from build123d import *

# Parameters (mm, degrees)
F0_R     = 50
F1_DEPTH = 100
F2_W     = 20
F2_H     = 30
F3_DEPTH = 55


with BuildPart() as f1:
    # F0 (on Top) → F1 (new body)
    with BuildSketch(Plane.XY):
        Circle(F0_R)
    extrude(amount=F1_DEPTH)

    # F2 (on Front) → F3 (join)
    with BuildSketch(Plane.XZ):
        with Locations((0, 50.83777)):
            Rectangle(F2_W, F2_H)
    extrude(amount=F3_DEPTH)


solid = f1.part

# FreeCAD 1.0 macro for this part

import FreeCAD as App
import Part
import Sketcher

V = App.Vector


def add_polygon(sketch, points):
    """Adds a closed chain of lines whose ends are joined by coincident constraints."""
    first, n = sketch.GeometryCount, len(points)
    for a, b in zip(points, points[1:] + points[:1]):
        sketch.addGeometry(Part.LineSegment(App.Vector(*a, 0), App.Vector(*b, 0)), False)
    for i in range(n):
        sketch.addConstraint(Sketcher.Constraint("Coincident", first + i, 2, first + (i + 1) % n, 1))

doc = App.newDocument("Part")
body = doc.addObject("PartDesign::Body", "Body")

# Sketch on XY plane
sketch1 = doc.addObject("Sketcher::SketchObject", "Sketch")
body.addObject(sketch1)
sketch1.AttachmentSupport = (doc.XY_Plane, [""])
sketch1.MapMode = "FlatFace"
sketch1.addGeometry(Part.Circle(V(0, 0, 0), V(0, 0, 1), 50), False)
sketch1.addConstraint(Sketcher.Constraint("Coincident", 0, 3, -1, 1))
sketch1.addConstraint(Sketcher.Constraint("Diameter", 0, 100.0))
pad1 = doc.addObject("PartDesign::Pad", "Pad")
body.addObject(pad1)
pad1.Profile = sketch1
pad1.Length = 100

# Sketch on XZ plane
sketch2 = doc.addObject("Sketcher::SketchObject", "Sketch001")
body.addObject(sketch2)
sketch2.AttachmentSupport = (doc.XZ_Plane, [""])
sketch2.MapMode = "FlatFace"
add_polygon(sketch2, [(-10, 66), (-10, 36), (10, 36), (10, 66)])  # lines 0-3
sketch2.addConstraint(Sketcher.Constraint("Vertical", 0))
sketch2.addConstraint(Sketcher.Constraint("Horizontal", 1))
sketch2.addConstraint(Sketcher.Constraint("Vertical", 2))
sketch2.addConstraint(Sketcher.Constraint("Horizontal", 3))
sketch2.addConstraint(Sketcher.Constraint("DistanceX", 1, 1, 1, 2, 20.0))
sketch2.addConstraint(Sketcher.Constraint("DistanceY", 0, 2, 0, 1, 30.0))
sketch2.addConstraint(Sketcher.Constraint("DistanceX", 0, 2, -1, 1, 10.0))
sketch2.addConstraint(Sketcher.Constraint("DistanceY", -1, 1, 0, 2, 35.83777))
pad2 = doc.addObject("PartDesign::Pad", "Pad001")
body.addObject(pad2)
pad2.Profile = sketch2
pad2.Length = 55

doc.recompute()
